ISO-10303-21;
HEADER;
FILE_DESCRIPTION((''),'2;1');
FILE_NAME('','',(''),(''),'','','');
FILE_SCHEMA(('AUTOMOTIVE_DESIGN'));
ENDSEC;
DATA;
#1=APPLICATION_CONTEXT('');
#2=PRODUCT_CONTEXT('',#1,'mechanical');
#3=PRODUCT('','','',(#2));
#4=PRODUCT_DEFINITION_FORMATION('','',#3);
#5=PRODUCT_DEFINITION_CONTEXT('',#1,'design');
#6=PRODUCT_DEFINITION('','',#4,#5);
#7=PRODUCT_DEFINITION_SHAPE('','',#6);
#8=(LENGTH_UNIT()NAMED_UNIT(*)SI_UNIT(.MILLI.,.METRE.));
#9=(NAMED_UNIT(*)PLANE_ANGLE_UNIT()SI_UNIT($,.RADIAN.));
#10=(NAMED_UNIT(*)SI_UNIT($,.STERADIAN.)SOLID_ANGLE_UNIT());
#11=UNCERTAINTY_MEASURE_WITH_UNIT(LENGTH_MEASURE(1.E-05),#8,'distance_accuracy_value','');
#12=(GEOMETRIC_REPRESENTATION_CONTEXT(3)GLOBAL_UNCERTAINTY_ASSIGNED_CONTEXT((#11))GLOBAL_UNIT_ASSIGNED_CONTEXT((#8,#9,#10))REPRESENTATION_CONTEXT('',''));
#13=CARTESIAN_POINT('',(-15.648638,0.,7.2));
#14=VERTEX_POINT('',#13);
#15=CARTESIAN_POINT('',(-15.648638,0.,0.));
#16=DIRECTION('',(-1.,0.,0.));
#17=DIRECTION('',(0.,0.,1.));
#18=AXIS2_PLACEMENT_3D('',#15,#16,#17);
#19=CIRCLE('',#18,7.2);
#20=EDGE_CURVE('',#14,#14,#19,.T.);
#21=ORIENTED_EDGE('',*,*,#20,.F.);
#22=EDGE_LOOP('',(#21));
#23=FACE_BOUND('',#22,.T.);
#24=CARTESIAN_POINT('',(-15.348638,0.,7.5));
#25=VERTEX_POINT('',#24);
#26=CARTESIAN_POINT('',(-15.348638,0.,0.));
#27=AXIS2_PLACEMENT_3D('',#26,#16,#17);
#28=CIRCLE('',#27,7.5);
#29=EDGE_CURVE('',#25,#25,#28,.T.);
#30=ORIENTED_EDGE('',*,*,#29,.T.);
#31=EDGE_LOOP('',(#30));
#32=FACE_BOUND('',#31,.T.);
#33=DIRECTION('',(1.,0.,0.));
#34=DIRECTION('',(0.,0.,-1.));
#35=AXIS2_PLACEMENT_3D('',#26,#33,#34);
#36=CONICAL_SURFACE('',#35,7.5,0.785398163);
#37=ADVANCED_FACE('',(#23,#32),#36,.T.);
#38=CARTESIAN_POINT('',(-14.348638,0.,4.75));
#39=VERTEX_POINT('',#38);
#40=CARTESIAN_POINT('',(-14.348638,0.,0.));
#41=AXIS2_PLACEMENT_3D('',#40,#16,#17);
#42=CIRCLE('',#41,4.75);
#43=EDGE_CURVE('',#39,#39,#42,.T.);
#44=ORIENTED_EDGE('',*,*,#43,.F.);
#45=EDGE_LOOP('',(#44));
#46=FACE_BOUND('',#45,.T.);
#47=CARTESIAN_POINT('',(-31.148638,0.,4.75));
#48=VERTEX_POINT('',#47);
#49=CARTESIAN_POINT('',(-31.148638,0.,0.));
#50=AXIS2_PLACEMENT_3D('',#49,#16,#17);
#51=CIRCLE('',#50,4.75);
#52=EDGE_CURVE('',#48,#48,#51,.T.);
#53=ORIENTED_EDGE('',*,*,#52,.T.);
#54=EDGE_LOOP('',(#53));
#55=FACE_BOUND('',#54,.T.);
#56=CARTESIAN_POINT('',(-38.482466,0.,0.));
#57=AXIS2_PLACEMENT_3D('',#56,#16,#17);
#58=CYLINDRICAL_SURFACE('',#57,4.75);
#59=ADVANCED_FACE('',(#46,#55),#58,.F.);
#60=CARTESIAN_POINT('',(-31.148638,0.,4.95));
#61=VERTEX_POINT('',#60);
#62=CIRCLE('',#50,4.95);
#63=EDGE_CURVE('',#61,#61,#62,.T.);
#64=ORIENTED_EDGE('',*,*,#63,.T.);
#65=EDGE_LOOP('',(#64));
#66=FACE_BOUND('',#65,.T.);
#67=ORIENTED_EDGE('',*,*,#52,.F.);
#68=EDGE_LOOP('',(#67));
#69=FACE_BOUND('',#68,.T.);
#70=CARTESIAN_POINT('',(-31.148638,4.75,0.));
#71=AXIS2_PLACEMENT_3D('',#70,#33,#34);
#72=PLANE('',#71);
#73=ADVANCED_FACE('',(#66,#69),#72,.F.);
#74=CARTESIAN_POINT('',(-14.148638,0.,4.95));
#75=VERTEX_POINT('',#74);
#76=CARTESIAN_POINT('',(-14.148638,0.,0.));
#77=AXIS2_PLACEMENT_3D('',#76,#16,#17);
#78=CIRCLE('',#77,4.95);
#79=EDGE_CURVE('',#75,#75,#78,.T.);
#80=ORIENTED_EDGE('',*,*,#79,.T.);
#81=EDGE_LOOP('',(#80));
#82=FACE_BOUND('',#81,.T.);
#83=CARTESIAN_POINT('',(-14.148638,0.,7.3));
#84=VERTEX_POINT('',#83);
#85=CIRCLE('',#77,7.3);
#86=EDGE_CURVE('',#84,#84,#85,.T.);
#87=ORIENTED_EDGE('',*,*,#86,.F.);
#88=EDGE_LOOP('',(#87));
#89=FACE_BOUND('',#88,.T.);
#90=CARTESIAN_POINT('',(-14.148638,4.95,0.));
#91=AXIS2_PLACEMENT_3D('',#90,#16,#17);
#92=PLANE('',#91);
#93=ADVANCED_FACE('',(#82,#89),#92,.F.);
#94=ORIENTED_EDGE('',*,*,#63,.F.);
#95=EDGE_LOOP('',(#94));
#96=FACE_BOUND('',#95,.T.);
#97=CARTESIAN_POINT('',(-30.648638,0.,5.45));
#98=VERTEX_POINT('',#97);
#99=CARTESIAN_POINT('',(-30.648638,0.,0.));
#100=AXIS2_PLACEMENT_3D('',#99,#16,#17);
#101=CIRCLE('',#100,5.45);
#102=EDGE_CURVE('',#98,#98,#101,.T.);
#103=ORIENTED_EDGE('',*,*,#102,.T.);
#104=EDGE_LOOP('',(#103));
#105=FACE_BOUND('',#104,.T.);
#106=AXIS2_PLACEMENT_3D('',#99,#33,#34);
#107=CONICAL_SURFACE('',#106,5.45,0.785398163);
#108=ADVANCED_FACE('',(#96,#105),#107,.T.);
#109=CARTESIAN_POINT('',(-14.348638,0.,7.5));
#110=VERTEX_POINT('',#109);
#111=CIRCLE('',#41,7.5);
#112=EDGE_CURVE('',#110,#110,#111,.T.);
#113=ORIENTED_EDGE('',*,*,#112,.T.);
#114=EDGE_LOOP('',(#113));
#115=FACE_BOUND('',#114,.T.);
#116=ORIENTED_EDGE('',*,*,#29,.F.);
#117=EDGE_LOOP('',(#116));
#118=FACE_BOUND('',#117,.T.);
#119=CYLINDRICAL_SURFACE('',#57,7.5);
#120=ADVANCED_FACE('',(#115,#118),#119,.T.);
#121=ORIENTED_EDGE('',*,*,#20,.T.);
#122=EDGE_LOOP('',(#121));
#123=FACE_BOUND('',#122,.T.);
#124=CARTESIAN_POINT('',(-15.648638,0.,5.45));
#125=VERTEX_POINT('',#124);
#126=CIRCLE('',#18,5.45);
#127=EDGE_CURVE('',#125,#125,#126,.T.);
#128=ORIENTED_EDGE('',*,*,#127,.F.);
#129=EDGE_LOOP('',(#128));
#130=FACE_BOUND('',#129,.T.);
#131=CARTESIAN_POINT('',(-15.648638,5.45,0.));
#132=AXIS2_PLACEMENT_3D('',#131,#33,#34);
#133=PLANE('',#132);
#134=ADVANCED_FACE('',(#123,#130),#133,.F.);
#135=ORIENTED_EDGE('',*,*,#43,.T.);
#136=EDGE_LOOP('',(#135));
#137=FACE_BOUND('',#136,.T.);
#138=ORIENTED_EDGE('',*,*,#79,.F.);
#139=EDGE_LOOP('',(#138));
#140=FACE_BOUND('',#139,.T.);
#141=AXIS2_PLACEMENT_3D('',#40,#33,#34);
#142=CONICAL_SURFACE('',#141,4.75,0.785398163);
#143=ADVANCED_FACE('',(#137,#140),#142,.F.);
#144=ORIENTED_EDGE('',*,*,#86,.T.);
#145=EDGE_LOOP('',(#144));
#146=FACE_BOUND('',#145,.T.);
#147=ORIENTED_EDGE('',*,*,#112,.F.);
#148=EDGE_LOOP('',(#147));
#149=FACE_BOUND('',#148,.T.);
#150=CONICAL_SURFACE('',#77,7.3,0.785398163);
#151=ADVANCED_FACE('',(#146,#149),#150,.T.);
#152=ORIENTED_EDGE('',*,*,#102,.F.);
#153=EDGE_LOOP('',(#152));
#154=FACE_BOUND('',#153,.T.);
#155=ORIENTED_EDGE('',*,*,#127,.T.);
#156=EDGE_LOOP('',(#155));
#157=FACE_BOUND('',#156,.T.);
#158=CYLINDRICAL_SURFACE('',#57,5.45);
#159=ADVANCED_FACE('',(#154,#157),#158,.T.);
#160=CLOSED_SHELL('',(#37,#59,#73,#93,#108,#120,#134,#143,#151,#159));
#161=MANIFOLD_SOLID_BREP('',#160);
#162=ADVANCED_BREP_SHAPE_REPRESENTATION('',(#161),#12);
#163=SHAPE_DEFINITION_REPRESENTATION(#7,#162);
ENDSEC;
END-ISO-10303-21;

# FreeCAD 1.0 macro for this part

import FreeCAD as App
import Part
import Sketcher


def add_polygon(sketch, points):
    """Adds a closed chain of lines whose ends are joined by coincident constraints."""
    first, n = sketch.GeometryCount, len(points)
    for a, b in zip(points, points[1:] + points[:1]):
        sketch.addGeometry(Part.LineSegment(App.Vector(*a, 0), App.Vector(*b, 0)), False)
    for i in range(n):
        sketch.addConstraint(Sketcher.Constraint("Coincident", first + i, 2, first + (i + 1) % n, 1))

doc = App.newDocument("Part")
body = doc.addObject("PartDesign::Body", "Body")

sketch1 = doc.addObject("Sketcher::SketchObject", "Sketch")
body.addObject(sketch1)
sketch1.AttachmentSupport = (doc.XY_Plane, [""])
sketch1.MapMode = "FlatFace"
add_polygon(sketch1, [(-31.15, 4.95), (-31.15, 4.75), (-14.35, 4.75), (-14.15, 4.95), (-14.15, 7.3), (-14.35, 7.5), (-15.35, 7.5), (-15.65, 7.2), (-15.65, 5.45), (-30.65, 5.45)])
sketch1.addConstraint(Sketcher.Constraint("Vertical", 0))
sketch1.addConstraint(Sketcher.Constraint("Horizontal", 1))
sketch1.addConstraint(Sketcher.Constraint("Vertical", 3))
sketch1.addConstraint(Sketcher.Constraint("Horizontal", 5))
sketch1.addConstraint(Sketcher.Constraint("Vertical", 7))
sketch1.addConstraint(Sketcher.Constraint("Horizontal", 8))
sketch1.addConstraint(Sketcher.Constraint("Perpendicular", 2, 4))
sketch1.addConstraint(Sketcher.Constraint("Perpendicular", 4, 6))
sketch1.addConstraint(Sketcher.Constraint("Parallel", 6, 9))
sketch1.addConstraint(Sketcher.Constraint("Horizontal", 2, 2, 9, 2))
sketch1.addConstraint(Sketcher.Constraint("Vertical", 1, 2, 4, 2))
sketch1.addConstraint(Sketcher.Constraint("Equal", 2, 4))
sketch1.addConstraint(Sketcher.Constraint("DistanceX", 5, 2, 5, 1, 1.0))
sketch1.addConstraint(Sketcher.Constraint("DistanceX", 8, 2, 8, 1, 15.0))
sketch1.addConstraint(Sketcher.Constraint("DistanceX", 1, 1, 1, 2, 16.8))
sketch1.addConstraint(Sketcher.Constraint("DistanceY", 0, 2, 0, 1, 0.2))
sketch1.addConstraint(Sketcher.Constraint("DistanceY", 3, 1, 3, 2, 2.35))
sketch1.addConstraint(Sketcher.Constraint("DistanceY", -1, 1, 3, 2, 7.3))
sketch1.addConstraint(Sketcher.Constraint("DistanceY", -1, 1, 6, 2, 7.2))
sketch1.addConstraint(Sketcher.Constraint("DistanceX", 0, 2, -1, 1, 31.148638))
revolution = doc.addObject("PartDesign::Revolution", "Revolution")
body.addObject(revolution)
revolution.Profile = sketch1
revolution.ReferenceAxis = (sketch1, ["H_Axis"])
revolution.Angle = 360

doc.recompute()
